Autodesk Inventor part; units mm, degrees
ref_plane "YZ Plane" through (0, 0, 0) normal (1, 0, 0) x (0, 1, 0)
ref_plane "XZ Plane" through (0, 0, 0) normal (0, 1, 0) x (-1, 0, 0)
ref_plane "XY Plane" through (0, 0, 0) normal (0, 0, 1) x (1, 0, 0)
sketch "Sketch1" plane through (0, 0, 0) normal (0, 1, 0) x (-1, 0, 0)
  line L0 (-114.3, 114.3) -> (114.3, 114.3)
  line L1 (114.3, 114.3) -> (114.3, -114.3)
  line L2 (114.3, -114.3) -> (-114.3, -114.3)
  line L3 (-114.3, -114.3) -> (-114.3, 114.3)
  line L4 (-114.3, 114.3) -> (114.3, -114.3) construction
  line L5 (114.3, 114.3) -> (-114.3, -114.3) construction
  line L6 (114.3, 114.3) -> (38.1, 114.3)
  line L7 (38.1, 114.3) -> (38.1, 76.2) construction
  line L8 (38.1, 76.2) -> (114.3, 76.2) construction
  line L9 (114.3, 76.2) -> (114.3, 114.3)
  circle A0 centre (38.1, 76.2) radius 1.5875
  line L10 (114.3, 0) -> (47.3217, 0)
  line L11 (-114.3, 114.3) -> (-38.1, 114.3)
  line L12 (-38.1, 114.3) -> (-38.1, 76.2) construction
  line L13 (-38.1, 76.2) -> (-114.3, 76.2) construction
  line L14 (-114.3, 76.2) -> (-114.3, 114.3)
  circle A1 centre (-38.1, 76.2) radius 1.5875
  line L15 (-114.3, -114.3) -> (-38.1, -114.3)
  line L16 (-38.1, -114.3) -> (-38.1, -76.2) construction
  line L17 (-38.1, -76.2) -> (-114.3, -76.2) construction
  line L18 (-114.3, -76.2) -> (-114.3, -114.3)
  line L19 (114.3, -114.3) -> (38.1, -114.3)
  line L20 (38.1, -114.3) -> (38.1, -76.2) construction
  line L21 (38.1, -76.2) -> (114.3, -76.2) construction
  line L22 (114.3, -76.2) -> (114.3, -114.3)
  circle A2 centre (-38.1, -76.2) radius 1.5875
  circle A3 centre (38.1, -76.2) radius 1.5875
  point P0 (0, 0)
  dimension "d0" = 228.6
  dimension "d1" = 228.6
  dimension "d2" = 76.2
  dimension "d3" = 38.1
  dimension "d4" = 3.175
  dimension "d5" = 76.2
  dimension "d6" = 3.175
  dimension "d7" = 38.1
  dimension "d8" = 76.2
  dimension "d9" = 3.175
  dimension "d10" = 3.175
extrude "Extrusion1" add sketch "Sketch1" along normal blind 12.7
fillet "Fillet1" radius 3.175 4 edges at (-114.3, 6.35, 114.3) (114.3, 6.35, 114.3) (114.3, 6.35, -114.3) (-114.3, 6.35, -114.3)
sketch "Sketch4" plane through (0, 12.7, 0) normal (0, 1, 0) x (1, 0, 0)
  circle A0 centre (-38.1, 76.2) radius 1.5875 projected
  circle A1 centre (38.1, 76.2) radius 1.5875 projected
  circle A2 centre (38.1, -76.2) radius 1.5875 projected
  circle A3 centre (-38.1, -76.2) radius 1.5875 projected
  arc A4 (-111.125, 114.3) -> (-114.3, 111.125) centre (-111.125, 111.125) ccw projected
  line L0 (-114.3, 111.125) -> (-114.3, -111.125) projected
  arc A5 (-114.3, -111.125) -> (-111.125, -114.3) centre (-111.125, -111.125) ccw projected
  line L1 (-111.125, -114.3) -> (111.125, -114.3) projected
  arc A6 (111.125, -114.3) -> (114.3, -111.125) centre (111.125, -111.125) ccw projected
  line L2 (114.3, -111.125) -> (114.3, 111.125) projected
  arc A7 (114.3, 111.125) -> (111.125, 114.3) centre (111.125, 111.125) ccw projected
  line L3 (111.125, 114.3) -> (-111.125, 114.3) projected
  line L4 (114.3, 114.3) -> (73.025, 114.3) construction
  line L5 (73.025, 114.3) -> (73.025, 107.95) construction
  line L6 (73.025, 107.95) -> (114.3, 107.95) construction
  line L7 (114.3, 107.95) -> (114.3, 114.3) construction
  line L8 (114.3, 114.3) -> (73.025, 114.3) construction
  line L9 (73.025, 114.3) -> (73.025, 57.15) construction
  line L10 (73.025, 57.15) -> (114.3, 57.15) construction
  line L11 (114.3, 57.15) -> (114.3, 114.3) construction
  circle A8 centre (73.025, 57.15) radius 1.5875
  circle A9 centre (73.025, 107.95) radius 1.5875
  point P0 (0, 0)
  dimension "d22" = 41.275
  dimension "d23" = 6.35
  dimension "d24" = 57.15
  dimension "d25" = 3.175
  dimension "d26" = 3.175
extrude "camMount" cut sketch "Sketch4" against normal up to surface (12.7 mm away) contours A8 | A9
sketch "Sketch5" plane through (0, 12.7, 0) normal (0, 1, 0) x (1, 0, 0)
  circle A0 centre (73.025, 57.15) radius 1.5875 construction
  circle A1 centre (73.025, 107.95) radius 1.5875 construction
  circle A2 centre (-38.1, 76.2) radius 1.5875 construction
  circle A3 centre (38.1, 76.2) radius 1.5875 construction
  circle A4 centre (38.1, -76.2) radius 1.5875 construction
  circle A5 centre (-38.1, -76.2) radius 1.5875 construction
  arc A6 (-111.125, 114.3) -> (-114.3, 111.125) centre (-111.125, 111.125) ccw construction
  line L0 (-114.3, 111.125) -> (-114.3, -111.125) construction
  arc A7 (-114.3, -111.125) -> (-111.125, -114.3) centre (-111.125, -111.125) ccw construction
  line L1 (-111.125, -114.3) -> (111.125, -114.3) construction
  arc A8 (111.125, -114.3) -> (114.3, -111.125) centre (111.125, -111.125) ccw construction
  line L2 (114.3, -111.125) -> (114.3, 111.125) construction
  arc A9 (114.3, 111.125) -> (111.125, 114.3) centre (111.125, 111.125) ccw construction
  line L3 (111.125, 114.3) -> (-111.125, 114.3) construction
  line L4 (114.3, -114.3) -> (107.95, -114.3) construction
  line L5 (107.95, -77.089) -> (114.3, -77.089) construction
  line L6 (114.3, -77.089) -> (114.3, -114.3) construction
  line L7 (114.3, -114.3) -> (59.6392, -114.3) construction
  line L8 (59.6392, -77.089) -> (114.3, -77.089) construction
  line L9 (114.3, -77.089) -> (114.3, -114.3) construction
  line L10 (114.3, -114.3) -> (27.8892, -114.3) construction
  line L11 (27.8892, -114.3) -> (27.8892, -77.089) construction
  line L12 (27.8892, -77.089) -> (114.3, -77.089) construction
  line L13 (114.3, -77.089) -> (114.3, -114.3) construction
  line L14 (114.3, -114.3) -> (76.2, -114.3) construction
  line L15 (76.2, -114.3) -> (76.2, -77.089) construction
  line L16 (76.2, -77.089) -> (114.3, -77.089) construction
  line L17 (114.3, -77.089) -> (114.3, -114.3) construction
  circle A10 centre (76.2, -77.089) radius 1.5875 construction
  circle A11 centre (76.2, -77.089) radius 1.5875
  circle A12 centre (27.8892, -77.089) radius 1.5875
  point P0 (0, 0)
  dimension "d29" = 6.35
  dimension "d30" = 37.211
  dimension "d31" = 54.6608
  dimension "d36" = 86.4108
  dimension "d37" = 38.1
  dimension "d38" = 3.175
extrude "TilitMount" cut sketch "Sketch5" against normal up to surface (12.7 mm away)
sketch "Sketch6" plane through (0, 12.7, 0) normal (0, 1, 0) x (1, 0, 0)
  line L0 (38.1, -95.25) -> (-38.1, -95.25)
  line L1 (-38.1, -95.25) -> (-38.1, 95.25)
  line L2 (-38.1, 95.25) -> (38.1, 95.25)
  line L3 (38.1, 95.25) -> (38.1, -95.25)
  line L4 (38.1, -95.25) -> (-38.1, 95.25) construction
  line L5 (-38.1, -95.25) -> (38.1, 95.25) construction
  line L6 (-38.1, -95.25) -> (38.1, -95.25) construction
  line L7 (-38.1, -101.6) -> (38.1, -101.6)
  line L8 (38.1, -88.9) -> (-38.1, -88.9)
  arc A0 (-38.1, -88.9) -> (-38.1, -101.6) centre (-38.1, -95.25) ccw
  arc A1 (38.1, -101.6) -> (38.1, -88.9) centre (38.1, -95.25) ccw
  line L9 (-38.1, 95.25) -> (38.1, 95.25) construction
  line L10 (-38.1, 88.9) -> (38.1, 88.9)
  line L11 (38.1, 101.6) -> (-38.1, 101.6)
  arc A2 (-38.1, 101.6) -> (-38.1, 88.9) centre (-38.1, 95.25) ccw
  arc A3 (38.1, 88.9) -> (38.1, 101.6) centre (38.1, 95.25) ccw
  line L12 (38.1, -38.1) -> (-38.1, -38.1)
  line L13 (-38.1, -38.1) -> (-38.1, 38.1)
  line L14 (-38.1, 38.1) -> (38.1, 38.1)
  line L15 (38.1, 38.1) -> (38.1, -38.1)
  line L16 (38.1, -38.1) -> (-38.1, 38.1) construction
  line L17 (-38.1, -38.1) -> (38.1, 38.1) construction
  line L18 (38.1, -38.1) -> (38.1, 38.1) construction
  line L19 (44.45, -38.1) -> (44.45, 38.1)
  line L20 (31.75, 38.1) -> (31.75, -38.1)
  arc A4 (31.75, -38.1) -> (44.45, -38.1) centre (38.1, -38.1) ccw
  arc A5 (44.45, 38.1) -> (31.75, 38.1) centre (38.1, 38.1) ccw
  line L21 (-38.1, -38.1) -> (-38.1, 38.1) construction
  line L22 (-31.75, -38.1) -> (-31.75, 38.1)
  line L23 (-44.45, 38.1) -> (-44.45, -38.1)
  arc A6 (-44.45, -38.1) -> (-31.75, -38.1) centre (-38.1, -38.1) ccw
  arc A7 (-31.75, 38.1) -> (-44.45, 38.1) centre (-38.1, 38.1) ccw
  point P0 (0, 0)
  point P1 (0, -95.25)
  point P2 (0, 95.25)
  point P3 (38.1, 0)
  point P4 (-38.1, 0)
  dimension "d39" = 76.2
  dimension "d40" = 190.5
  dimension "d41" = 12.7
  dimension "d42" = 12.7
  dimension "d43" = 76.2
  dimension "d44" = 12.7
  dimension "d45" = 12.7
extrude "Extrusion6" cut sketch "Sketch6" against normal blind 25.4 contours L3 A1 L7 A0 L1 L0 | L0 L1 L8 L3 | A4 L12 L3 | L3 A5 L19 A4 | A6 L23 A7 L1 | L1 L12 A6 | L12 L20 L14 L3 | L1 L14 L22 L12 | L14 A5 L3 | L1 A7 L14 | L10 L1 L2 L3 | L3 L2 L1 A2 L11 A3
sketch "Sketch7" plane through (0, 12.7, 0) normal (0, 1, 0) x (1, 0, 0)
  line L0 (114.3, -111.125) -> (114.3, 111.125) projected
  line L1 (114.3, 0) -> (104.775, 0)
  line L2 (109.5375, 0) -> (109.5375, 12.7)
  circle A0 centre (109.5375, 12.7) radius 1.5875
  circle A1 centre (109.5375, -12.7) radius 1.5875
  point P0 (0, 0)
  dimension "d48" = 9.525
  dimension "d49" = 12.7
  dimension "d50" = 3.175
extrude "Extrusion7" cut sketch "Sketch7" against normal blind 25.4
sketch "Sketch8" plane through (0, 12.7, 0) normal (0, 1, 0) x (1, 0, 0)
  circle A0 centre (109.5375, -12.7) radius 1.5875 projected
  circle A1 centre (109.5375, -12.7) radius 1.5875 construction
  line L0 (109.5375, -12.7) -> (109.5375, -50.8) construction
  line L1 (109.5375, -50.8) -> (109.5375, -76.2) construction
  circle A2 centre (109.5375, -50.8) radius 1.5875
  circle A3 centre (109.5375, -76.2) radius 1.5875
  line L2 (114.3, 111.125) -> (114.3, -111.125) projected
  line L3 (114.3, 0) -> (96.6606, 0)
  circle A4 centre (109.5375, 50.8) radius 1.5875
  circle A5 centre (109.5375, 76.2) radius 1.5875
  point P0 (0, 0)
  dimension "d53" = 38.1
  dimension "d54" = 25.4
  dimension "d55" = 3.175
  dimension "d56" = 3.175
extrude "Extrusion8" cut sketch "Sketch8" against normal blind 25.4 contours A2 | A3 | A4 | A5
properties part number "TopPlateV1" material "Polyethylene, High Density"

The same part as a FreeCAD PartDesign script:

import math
import FreeCAD as App
import Part
import Sketcher
from FreeCAD import Vector
Q = App.Units.Quantity


def edges_at(feature, points):
    """Names of the edges that pass closest to the given points."""
    edges = feature.Shape.Edges
    near = lambda p: min(range(len(edges)), key=lambda i: edges[i].distToShape(Part.Vertex(*p))[0])
    return sorted({f"Edge{near(p) + 1}" for p in points})

doc = App.newDocument("Part")
body = doc.addObject("PartDesign::Body", "Body")

# Sketch on XZ plane
sketch1 = body.newObject("Sketcher::SketchObject", "Sketch")
sketch1.AttachmentSupport = (doc.getObject("XZ_Plane"), [""])
sketch1.MapMode = "FlatFace"
sketch1.addGeometry(Part.LineSegment(Vector(-114.3, 114.3, 0), Vector(114.3, 114.3, 0)), False)
sketch1.addGeometry(Part.LineSegment(Vector(114.3, 114.3, 0), Vector(114.3, -114.3, 0)), False)
sketch1.addGeometry(Part.LineSegment(Vector(114.3, -114.3, 0), Vector(-114.3, -114.3, 0)), False)
sketch1.addGeometry(Part.LineSegment(Vector(-114.3, -114.3, 0), Vector(-114.3, 114.3, 0)), False)
sketch1.addGeometry(Part.Circle(Vector(38.1, -76.2, 0), Vector(0, 0, 1), 1.6), False)
sketch1.addGeometry(Part.Circle(Vector(-38.1, -76.2, 0), Vector(0, 0, 1), 1.6), False)
sketch1.addGeometry(Part.Circle(Vector(38.1, 76.2, 0), Vector(0, 0, 1), 1.6), False)
sketch1.addGeometry(Part.Circle(Vector(-38.1, 76.2, 0), Vector(0, 0, 1), 1.6), False)
sketch1.addConstraint(Sketcher.Constraint("Coincident", 0, 2, 1, 1))
sketch1.addConstraint(Sketcher.Constraint("Coincident", 1, 2, 2, 1))
sketch1.addConstraint(Sketcher.Constraint("Coincident", 2, 2, 3, 1))
sketch1.addConstraint(Sketcher.Constraint("Coincident", 3, 2, 0, 1))
sketch1.addConstraint(Sketcher.Constraint("Horizontal", 0))
sketch1.addConstraint(Sketcher.Constraint("Vertical", 1))
sketch1.addConstraint(Sketcher.Constraint("Horizontal", 2))
sketch1.addConstraint(Sketcher.Constraint("Vertical", 3))
sketch1.addConstraint(Sketcher.Constraint("Equal", 4, 5))
sketch1.addConstraint(Sketcher.Constraint("Equal", 5, 6))
sketch1.addConstraint(Sketcher.Constraint("Equal", 6, 7))
sketch1.addConstraint(Sketcher.Constraint("Symmetric", 5, 3, 6, 3, -1, 1))
sketch1.addConstraint(Sketcher.Constraint("Symmetric", 4, 3, 7, 3, -1, 1))
sketch1.addConstraint(Sketcher.Constraint("Symmetric", 0, 2, 2, 2, -1, 1))
sketch1.addConstraint(Sketcher.Constraint("Symmetric", 4, 3, 5, 3, -2))
sketch1.addConstraint(Sketcher.Constraint("Equal", 2, 1))
sketch1.addConstraint(Sketcher.Constraint("DistanceX", 0, 1, 0, 2, Q("9 in")))
sketch1.addConstraint(Sketcher.Constraint("Diameter", 4, Q("0.125 in")))
sketch1.addConstraint(Sketcher.Constraint("DistanceY", 4, 3, -1, 1, Q("3 in")))
sketch1.addConstraint(Sketcher.Constraint("DistanceX", 5, 3, 4, 3, Q("3 in")))
pad1 = body.newObject("PartDesign::Pad", "Pad")
pad1.Profile = sketch1
pad1.Length = Q("0.5 in")
pad1.Reversed = True
doc.recompute()

fillet = body.newObject("PartDesign::Fillet", "Fillet")
fillet.Base = (pad1, edges_at(pad1, [
    (-114.3, 6.35, 114.3),
    (114.3, 6.35, 114.3),
    (114.3, 6.35, -114.3),
    (-114.3, 6.35, -114.3),
]))
fillet.Radius = Q("0.125 in")

# Sketch on XZ plane
sketch2 = body.newObject("Sketcher::SketchObject", "Sketch001")
sketch2.AttachmentSupport = (doc.getObject("XZ_Plane"), [""])
sketch2.MapMode = "FlatFace"
sketch2.AttachmentOffset = App.Placement(Vector(0, 0, -0.5 * 25.4), App.Rotation())
sketch2.addGeometry(Part.Circle(Vector(73, -57.1, 0), Vector(0, 0, 1), 1.6), False)
sketch2.addGeometry(Part.Circle(Vector(73, -108, 0), Vector(0, 0, 1), 1.6), False)
sketch2.addConstraint(Sketcher.Constraint("Equal", 0, 1))
sketch2.addConstraint(Sketcher.Constraint("Vertical", 0, 3, 1, 3))
sketch2.addConstraint(Sketcher.Constraint("Diameter", 0, Q("0.125 in")))
sketch2.addConstraint(Sketcher.Constraint("DistanceY", 0, 3, -1, 1, Q("2.25 in")))
sketch2.addConstraint(Sketcher.Constraint("DistanceY", 1, 3, 0, 3, Q("2 in")))
sketch2.addConstraint(Sketcher.Constraint("DistanceX", -1, 1, 0, 3, Q("2.875 in")))
pocket1 = body.newObject("PartDesign::Pocket", "Pocket")
pocket1.Profile = sketch2
pocket1.Length = Q("0.5 in")
pocket1.Reversed = True

# Sketch on XZ plane
sketch3 = body.newObject("Sketcher::SketchObject", "Sketch002")
sketch3.AttachmentSupport = (doc.getObject("XZ_Plane"), [""])
sketch3.MapMode = "FlatFace"
sketch3.AttachmentOffset = App.Placement(Vector(0, 0, -0.5 * 25.4), App.Rotation())
sketch3.addGeometry(Part.Circle(Vector(76.2, 77.1, 0), Vector(0, 0, 1), 1.6), False)
sketch3.addGeometry(Part.Circle(Vector(27.9, 77.1, 0), Vector(0, 0, 1), 1.6), False)
sketch3.addConstraint(Sketcher.Constraint("Equal", 0, 1))
sketch3.addConstraint(Sketcher.Constraint("Horizontal", 0, 3, 1, 3))
sketch3.addConstraint(Sketcher.Constraint("Diameter", 0, Q("0.125 in")))
sketch3.addConstraint(Sketcher.Constraint("DistanceX", -1, 1, 0, 3, Q("3 in")))
sketch3.addConstraint(Sketcher.Constraint("DistanceY", -1, 1, 0, 3, Q("3.035 in")))
sketch3.addConstraint(Sketcher.Constraint("DistanceX", -1, 1, 1, 3, Q("1.098 in")))
pocket2 = body.newObject("PartDesign::Pocket", "Pocket001")
pocket2.Profile = sketch3
pocket2.Length = Q("0.5 in")
pocket2.Reversed = True

# Sketch on XZ plane
sketch4 = body.newObject("Sketcher::SketchObject", "Sketch003")
sketch4.AttachmentSupport = (doc.getObject("XZ_Plane"), [""])
sketch4.MapMode = "FlatFace"
sketch4.AttachmentOffset = App.Placement(Vector(0, 0, -0.5 * 25.4), App.Rotation())
sketch4.addGeometry(Part.ArcOfCircle(Part.Circle(Vector(38, 95, 0), Vector(0, 0, 1), 6), math.radians(-90), math.radians(90)), False)
sketch4.addGeometry(Part.LineSegment(Vector(38, 89, 0), Vector(-38, 89, 0)), False)
sketch4.addGeometry(Part.ArcOfCircle(Part.Circle(Vector(-38, 95, 0), Vector(0, 0, 1), 6), math.radians(90), math.radians(270)), False)
sketch4.addGeometry(Part.LineSegment(Vector(-38, 102, 0), Vector(38, 102, 0)), False)
sketch4.addGeometry(Part.ArcOfCircle(Part.Circle(Vector(38, 38, 0), Vector(0, 0, 1), 6), math.radians(0), math.radians(180)), False)
sketch4.addGeometry(Part.LineSegment(Vector(44, 38, 0), Vector(44, -38, 0)), False)
sketch4.addGeometry(Part.ArcOfCircle(Part.Circle(Vector(38, -38, 0), Vector(0, 0, 1), 6), math.radians(180), math.radians(360)), False)
sketch4.addGeometry(Part.LineSegment(Vector(32, -38, 0), Vector(32, 38, 0)), False)
sketch4.addGeometry(Part.ArcOfCircle(Part.Circle(Vector(-38, 38, 0), Vector(0, 0, 1), 6), math.radians(0), math.radians(180)), False)
sketch4.addGeometry(Part.LineSegment(Vector(-32, 38, 0), Vector(-32, -38, 0)), False)
sketch4.addGeometry(Part.ArcOfCircle(Part.Circle(Vector(-38, -38, 0), Vector(0, 0, 1), 6), math.radians(180), math.radians(360)), False)
sketch4.addGeometry(Part.LineSegment(Vector(-44, -38, 0), Vector(-44, 38, 0)), False)
sketch4.addGeometry(Part.LineSegment(Vector(-38, -89, 0), Vector(38, -89, 0)), False)
sketch4.addGeometry(Part.ArcOfCircle(Part.Circle(Vector(38, -95, 0), Vector(0, 0, 1), 6), math.radians(-90), math.radians(90)), False)
sketch4.addGeometry(Part.LineSegment(Vector(38, -102, 0), Vector(-38, -102, 0)), False)
sketch4.addGeometry(Part.ArcOfCircle(Part.Circle(Vector(-38, -95, 0), Vector(0, 0, 1), 6), math.radians(90), math.radians(270)), False)
sketch4.addConstraint(Sketcher.Constraint("Tangent", 0, 1, 1, 1))
sketch4.addConstraint(Sketcher.Constraint("Tangent", 1, 2, 2, 2))
sketch4.addConstraint(Sketcher.Constraint("Tangent", 2, 1, 3, 1))
sketch4.addConstraint(Sketcher.Constraint("Tangent", 3, 2, 0, 2))
sketch4.addConstraint(Sketcher.Constraint("Tangent", 4, 1, 5, 1))
sketch4.addConstraint(Sketcher.Constraint("Tangent", 5, 2, 6, 2))
sketch4.addConstraint(Sketcher.Constraint("Tangent", 6, 1, 7, 1))
sketch4.addConstraint(Sketcher.Constraint("Tangent", 7, 2, 4, 2))
sketch4.addConstraint(Sketcher.Constraint("Tangent", 8, 1, 9, 1))
sketch4.addConstraint(Sketcher.Constraint("Tangent", 9, 2, 10, 2))
sketch4.addConstraint(Sketcher.Constraint("Tangent", 10, 1, 11, 1))
sketch4.addConstraint(Sketcher.Constraint("Tangent", 11, 2, 8, 2))
sketch4.addConstraint(Sketcher.Constraint("Tangent", 12, 2, 13, 2))
sketch4.addConstraint(Sketcher.Constraint("Tangent", 13, 1, 14, 1))
sketch4.addConstraint(Sketcher.Constraint("Tangent", 14, 2, 15, 2))
sketch4.addConstraint(Sketcher.Constraint("Tangent", 15, 1, 12, 1))
sketch4.addConstraint(Sketcher.Constraint("Horizontal", 1))
sketch4.addConstraint(Sketcher.Constraint("Horizontal", 3))
sketch4.addConstraint(Sketcher.Constraint("Vertical", 5))
sketch4.addConstraint(Sketcher.Constraint("Vertical", 7))
sketch4.addConstraint(Sketcher.Constraint("Vertical", 9))
sketch4.addConstraint(Sketcher.Constraint("Vertical", 11))
sketch4.addConstraint(Sketcher.Constraint("Horizontal", 12))
sketch4.addConstraint(Sketcher.Constraint("Horizontal", 14))
sketch4.addConstraint(Sketcher.Constraint("Equal", 2, 4))
sketch4.addConstraint(Sketcher.Constraint("Equal", 6, 8))
sketch4.addConstraint(Sketcher.Constraint("Equal", 10, 13))
sketch4.addConstraint(Sketcher.Constraint("Symmetric", 6, 3, 8, 3, -1, 1))
sketch4.addConstraint(Sketcher.Constraint("Symmetric", 2, 3, 13, 3, -1, 1))
sketch4.addConstraint(Sketcher.Constraint("Horizontal", 4, 3, 8, 3))
sketch4.addConstraint(Sketcher.Constraint("Horizontal", 6, 3, 10, 3))
sketch4.addConstraint(Sketcher.Constraint("Vertical", 0, 3, 4, 3))
sketch4.addConstraint(Sketcher.Constraint("Vertical", 2, 3, 8, 3))
sketch4.addConstraint(Sketcher.Constraint("Vertical", 10, 3, 15, 3))
sketch4.addConstraint(Sketcher.Constraint("Equal", 14, 5))
sketch4.addConstraint(Sketcher.Constraint("DistanceX", 1, 2, 1, 1, Q("3 in")))
sketch4.addConstraint(Sketcher.Constraint("Radius", 0, Q("0.25 in")))
sketch4.addConstraint(Sketcher.Constraint("DistanceY", 13, 3, 0, 3, Q("7.5 in")))
pocket3 = body.newObject("PartDesign::Pocket", "Pocket002")
pocket3.Profile = sketch4
pocket3.Length = Q("1 in")
pocket3.Reversed = True

# Sketch on XZ plane
sketch5 = body.newObject("Sketcher::SketchObject", "Sketch004")
sketch5.AttachmentSupport = (doc.getObject("XZ_Plane"), [""])
sketch5.MapMode = "FlatFace"
sketch5.AttachmentOffset = App.Placement(Vector(0, 0, -0.5 * 25.4), App.Rotation())
sketch5.addGeometry(Part.Circle(Vector(109.5, -12.7, 0), Vector(0, 0, 1), 1.6), False)
sketch5.addGeometry(Part.Circle(Vector(109.5, 12.7, 0), Vector(0, 0, 1), 1.6), False)
sketch5.addConstraint(Sketcher.Constraint("Equal", 0, 1))
sketch5.addConstraint(Sketcher.Constraint("Symmetric", 0, 3, 1, 3, -1))
sketch5.addConstraint(Sketcher.Constraint("Diameter", 0, Q("0.125 in")))
sketch5.addConstraint(Sketcher.Constraint("DistanceY", 0, 3, -1, 1, Q("0.5 in")))
sketch5.addConstraint(Sketcher.Constraint("DistanceX", -1, 1, 0, 3, Q("4.3125 in")))
pocket4 = body.newObject("PartDesign::Pocket", "Pocket003")
pocket4.Profile = sketch5
pocket4.Length = Q("1 in")
pocket4.Reversed = True

# Sketch on XZ plane
sketch6 = body.newObject("Sketcher::SketchObject", "Sketch005")
sketch6.AttachmentSupport = (doc.getObject("XZ_Plane"), [""])
sketch6.MapMode = "FlatFace"
sketch6.AttachmentOffset = App.Placement(Vector(0, 0, -0.5 * 25.4), App.Rotation())
sketch6.addGeometry(Part.Circle(Vector(109.5, 50.8, 0), Vector(0, 0, 1), 1.6), False)
sketch6.addGeometry(Part.Circle(Vector(109.5, 76.2, 0), Vector(0, 0, 1), 1.6), False)
sketch6.addGeometry(Part.Circle(Vector(109.5, -50.8, 0), Vector(0, 0, 1), 1.6), False)
sketch6.addGeometry(Part.Circle(Vector(109.5, -76.2, 0), Vector(0, 0, 1), 1.6), False)
sketch6.addConstraint(Sketcher.Constraint("Equal", 0, 1))
sketch6.addConstraint(Sketcher.Constraint("Equal", 1, 2))
sketch6.addConstraint(Sketcher.Constraint("Equal", 2, 3))
sketch6.addConstraint(Sketcher.Constraint("Symmetric", 0, 3, 2, 3, -1))
sketch6.addConstraint(Sketcher.Constraint("Symmetric", 1, 3, 3, 3, -1))
sketch6.addConstraint(Sketcher.Constraint("Vertical", 0, 3, 1, 3))
sketch6.addConstraint(Sketcher.Constraint("Diameter", 0, Q("0.125 in")))
sketch6.addConstraint(Sketcher.Constraint("DistanceY", 0, 3, 1, 3, Q("1 in")))
sketch6.addConstraint(Sketcher.Constraint("DistanceY", -1, 1, 0, 3, Q("2 in")))
sketch6.addConstraint(Sketcher.Constraint("DistanceX", -1, 1, 0, 3, Q("4.3125 in")))
pocket5 = body.newObject("PartDesign::Pocket", "Pocket004")
pocket5.Profile = sketch6
pocket5.Length = Q("1 in")
pocket5.Reversed = True

doc.recompute()
